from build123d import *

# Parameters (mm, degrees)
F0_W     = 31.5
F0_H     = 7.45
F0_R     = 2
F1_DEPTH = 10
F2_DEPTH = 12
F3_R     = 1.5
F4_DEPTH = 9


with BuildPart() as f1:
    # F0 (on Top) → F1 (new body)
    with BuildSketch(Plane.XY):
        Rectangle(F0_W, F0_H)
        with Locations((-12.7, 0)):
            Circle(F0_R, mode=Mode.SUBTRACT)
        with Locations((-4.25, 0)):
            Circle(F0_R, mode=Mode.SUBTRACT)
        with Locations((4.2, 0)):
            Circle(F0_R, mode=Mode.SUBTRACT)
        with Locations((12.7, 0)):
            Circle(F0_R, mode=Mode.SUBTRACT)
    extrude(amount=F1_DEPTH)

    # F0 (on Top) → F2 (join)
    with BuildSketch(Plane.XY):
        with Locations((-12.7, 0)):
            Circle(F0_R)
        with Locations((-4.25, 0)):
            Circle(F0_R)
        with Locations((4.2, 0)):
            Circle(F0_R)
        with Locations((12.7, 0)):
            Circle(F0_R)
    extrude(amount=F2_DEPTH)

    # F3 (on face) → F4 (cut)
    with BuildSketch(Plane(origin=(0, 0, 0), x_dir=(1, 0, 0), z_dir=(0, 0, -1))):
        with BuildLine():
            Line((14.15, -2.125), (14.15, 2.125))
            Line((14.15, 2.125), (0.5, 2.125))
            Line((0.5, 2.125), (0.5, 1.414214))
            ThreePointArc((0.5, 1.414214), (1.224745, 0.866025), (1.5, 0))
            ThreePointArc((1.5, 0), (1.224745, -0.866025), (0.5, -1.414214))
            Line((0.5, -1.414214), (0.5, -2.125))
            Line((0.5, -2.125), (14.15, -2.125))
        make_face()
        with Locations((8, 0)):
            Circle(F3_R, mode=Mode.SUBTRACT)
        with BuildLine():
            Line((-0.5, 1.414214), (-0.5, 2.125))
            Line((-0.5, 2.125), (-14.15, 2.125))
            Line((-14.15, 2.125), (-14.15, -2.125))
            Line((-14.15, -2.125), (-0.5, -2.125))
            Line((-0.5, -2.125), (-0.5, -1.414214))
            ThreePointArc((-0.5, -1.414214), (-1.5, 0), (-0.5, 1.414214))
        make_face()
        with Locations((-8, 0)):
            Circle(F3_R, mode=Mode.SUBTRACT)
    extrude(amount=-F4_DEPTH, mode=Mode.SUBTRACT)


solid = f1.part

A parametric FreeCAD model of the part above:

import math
import FreeCAD as App
import Part
import Sketcher
from FreeCAD import Vector
Q = App.Units.Quantity

doc = App.newDocument("Part")
body = doc.addObject("PartDesign::Body", "Body")

# Sketch on XY plane
sketch1 = doc.addObject("Sketcher::SketchObject", "Sketch")
body.addObject(sketch1)
sketch1.AttachmentSupport = (doc.XY_Plane, [""])
sketch1.MapMode = "FlatFace"
sketch1.addGeometry([
    Part.LineSegment(Vector(-15.8, 3.7, 0), Vector(-15.8, -3.7, 0)),  # 0
    Part.LineSegment(Vector(-15.8, -3.7, 0), Vector(15.8, -3.7, 0)),  # 1
    Part.LineSegment(Vector(15.8, -3.7, 0), Vector(15.8, 3.7, 0)),  # 2
    Part.LineSegment(Vector(15.8, 3.7, 0), Vector(-15.8, 3.7, 0)),  # 3
    Part.Circle(Vector(-12.7, 0, 0), Vector(0, 0, 1), 2),  # 4
    Part.Circle(Vector(-4.2, 0, 0), Vector(0, 0, 1), 2),  # 5
    Part.Circle(Vector(4.2, 0, 0), Vector(0, 0, 1), 2),  # 6
    Part.Circle(Vector(12.7, 0, 0), Vector(0, 0, 1), 2),  # 7
], False)
sketch1.addConstraint([
    Sketcher.Constraint("Coincident", 0, 2, 1, 1),
    Sketcher.Constraint("Coincident", 1, 2, 2, 1),
    Sketcher.Constraint("Coincident", 2, 2, 3, 1),
    Sketcher.Constraint("Coincident", 3, 2, 0, 1),
    Sketcher.Constraint("Vertical", 0),
    Sketcher.Constraint("Horizontal", 1),
    Sketcher.Constraint("Vertical", 2),
    Sketcher.Constraint("Horizontal", 3),
    Sketcher.Constraint("Equal", 4, 5),
    Sketcher.Constraint("Equal", 5, 6),
    Sketcher.Constraint("Equal", 6, 7),
    Sketcher.Constraint("Symmetric", 4, 3, 7, 3, -1, 1),
    Sketcher.Constraint("Symmetric", 0, 2, 2, 2, -1, 1),
    Sketcher.Constraint("PointOnObject", 4, 3, -1),
    Sketcher.Constraint("PointOnObject", 5, 3, -1),
    Sketcher.Constraint("PointOnObject", 6, 3, -1),
    Sketcher.Constraint("Diameter", 4, Q("4 mm")),
    Sketcher.Constraint("DistanceX", 1, 1, 1, 2, Q("31.5 mm")),
    Sketcher.Constraint("DistanceX", 5, 3, 1, 2, Q("20 mm")),
    Sketcher.Constraint("DistanceY", 0, 2, 0, 1, Q("7.45 mm")),
    Sketcher.Constraint("DistanceX", 4, 3, -1, 1, Q("12.7 mm")),
    Sketcher.Constraint("DistanceX", -1, 1, 6, 3, Q("4.2 mm")),
])
pad1 = doc.addObject("PartDesign::Pad", "Pad")
body.addObject(pad1)
pad1.Profile = sketch1
pad1.Length = 10

# Sketch on XY plane
sketch2 = doc.addObject("Sketcher::SketchObject", "Sketch001")
body.addObject(sketch2)
sketch2.AttachmentSupport = (doc.XY_Plane, [""])
sketch2.MapMode = "FlatFace"
sketch2.addGeometry([
    Part.Circle(Vector(-12.7, 0, 0), Vector(0, 0, 1), 2),
    Part.Circle(Vector(-4.2, 0, 0), Vector(0, 0, 1), 2),
    Part.Circle(Vector(4.2, 0, 0), Vector(0, 0, 1), 2),
    Part.Circle(Vector(12.7, 0, 0), Vector(0, 0, 1), 2),
], False)
sketch2.addConstraint([
    Sketcher.Constraint("Equal", 0, 1),
    Sketcher.Constraint("Equal", 1, 2),
    Sketcher.Constraint("Equal", 2, 3),
    Sketcher.Constraint("Symmetric", 0, 3, 3, 3, -1, 1),
    Sketcher.Constraint("PointOnObject", 0, 3, -1),
    Sketcher.Constraint("PointOnObject", 1, 3, -1),
    Sketcher.Constraint("PointOnObject", 2, 3, -1),
    Sketcher.Constraint("Diameter", 0, Q("4 mm")),
    Sketcher.Constraint("DistanceX", 0, 3, -1, 1, Q("12.7 mm")),
    Sketcher.Constraint("DistanceX", -1, 1, 2, 3, Q("4.2 mm")),
    Sketcher.Constraint("DistanceX", 1, 3, -1, 1, Q("4.25 mm")),
])
pad2 = doc.addObject("PartDesign::Pad", "Pad001")
body.addObject(pad2)
pad2.Profile = sketch2
pad2.Length = 12

# Sketch on XY plane
sketch3 = doc.addObject("Sketcher::SketchObject", "Sketch002")
body.addObject(sketch3)
sketch3.AttachmentSupport = (doc.XY_Plane, [""])
sketch3.MapMode = "FlatFace"
sketch3.addGeometry([
    Part.LineSegment(Vector(14.2, 2.1, 0), Vector(14.2, -2.1, 0)),  # 0
    Part.LineSegment(Vector(14.2, -2.1, 0), Vector(0.5, -2.1, 0)),  # 1
    Part.LineSegment(Vector(0.5, -2.1, 0), Vector(0.5, -1.4, 0)),  # 2
    Part.ArcOfCircle(Part.Circle(Vector(0, 0, 0), Vector(0, 0, 1), 1.5), math.radians(-71), math.radians(0)),  # 3
    Part.ArcOfCircle(Part.Circle(Vector(0, 0, 0), Vector(0, 0, 1), 1.5), math.radians(0), math.radians(71)),  # 4
    Part.LineSegment(Vector(0.5, 1.4, 0), Vector(0.5, 2.1, 0)),  # 5
    Part.LineSegment(Vector(0.5, 2.1, 0), Vector(14.2, 2.1, 0)),  # 6
    Part.Circle(Vector(8, 0, 0), Vector(0, 0, 1), 1.5),  # 7
    Part.LineSegment(Vector(-0.5, -1.4, 0), Vector(-0.5, -2.1, 0)),  # 8
    Part.LineSegment(Vector(-0.5, -2.1, 0), Vector(-14.2, -2.1, 0)),  # 9
    Part.LineSegment(Vector(-14.2, -2.1, 0), Vector(-14.2, 2.1, 0)),  # 10
    Part.LineSegment(Vector(-14.2, 2.1, 0), Vector(-0.5, 2.1, 0)),  # 11
    Part.LineSegment(Vector(-0.5, 2.1, 0), Vector(-0.5, 1.4, 0)),  # 12
    Part.ArcOfCircle(Part.Circle(Vector(0, 0, 0), Vector(0, 0, 1), 1.5), math.radians(109), math.radians(251)),  # 13
    Part.Circle(Vector(-8, 0, 0), Vector(0, 0, 1), 1.5),  # 14
], False)
sketch3.addConstraint([
    Sketcher.Constraint("Coincident", 0, 2, 1, 1),
    Sketcher.Constraint("Coincident", 1, 2, 2, 1),
    Sketcher.Constraint("Coincident", 2, 2, 3, 1),
    Sketcher.Constraint("Tangent", 3, 2, 4, 1),
    Sketcher.Constraint("Coincident", 4, 2, 5, 1),
    Sketcher.Constraint("Coincident", 5, 2, 6, 1),
    Sketcher.Constraint("Coincident", 6, 2, 0, 1),
    Sketcher.Constraint("Coincident", 8, 2, 9, 1),
    Sketcher.Constraint("Coincident", 9, 2, 10, 1),
    Sketcher.Constraint("Coincident", 10, 2, 11, 1),
    Sketcher.Constraint("Coincident", 11, 2, 12, 1),
    Sketcher.Constraint("Coincident", 12, 2, 13, 1),
    Sketcher.Constraint("Coincident", 13, 2, 8, 1),
    Sketcher.Constraint("Vertical", 0),
    Sketcher.Constraint("Horizontal", 1),
    Sketcher.Constraint("Vertical", 2),
    Sketcher.Constraint("Vertical", 5),
    Sketcher.Constraint("Horizontal", 6),
    Sketcher.Constraint("Vertical", 8),
    Sketcher.Constraint("Horizontal", 9),
    Sketcher.Constraint("Vertical", 10),
    Sketcher.Constraint("Horizontal", 11),
    Sketcher.Constraint("Vertical", 12),
    Sketcher.Constraint("Coincident", 3, 3, -1, 1),
    Sketcher.Constraint("Coincident", 13, 3, -1, 1),
    Sketcher.Constraint("Equal", 3, 4),
    Sketcher.Constraint("Equal", 4, 7),
    Sketcher.Constraint("Equal", 7, 13),
    Sketcher.Constraint("Equal", 13, 14),
    Sketcher.Constraint("Symmetric", 7, 3, 14, 3, -1, 1),
    Sketcher.Constraint("Symmetric", 5, 2, 8, 2, -1, 1),
    Sketcher.Constraint("Symmetric", 0, 2, 10, 2, -1, 1),
    Sketcher.Constraint("Symmetric", 1, 2, 8, 2, -2),
    Sketcher.Constraint("PointOnObject", 7, 3, -1),
    Sketcher.Constraint("PointOnObject", 3, 2, -1),
    Sketcher.Constraint("Horizontal", 4, 2, 12, 2),
    Sketcher.Constraint("Diameter", 7, Q("3 mm")),
    Sketcher.Constraint("DistanceX", -1, 1, 7, 3, Q("8 mm")),
    Sketcher.Constraint("DistanceX", 2, 2, 3, 2, Q("1 mm")),
    Sketcher.Constraint("DistanceX", 1, 2, 1, 1, Q("13.65 mm")),
    Sketcher.Constraint("DistanceY", 0, 2, 0, 1, Q("4.25 mm")),
])
pocket1 = doc.addObject("PartDesign::Pocket", "Pocket")
body.addObject(pocket1)
pocket1.Profile = sketch3
pocket1.Length = 9
pocket1.Reversed = True

doc.recompute()
